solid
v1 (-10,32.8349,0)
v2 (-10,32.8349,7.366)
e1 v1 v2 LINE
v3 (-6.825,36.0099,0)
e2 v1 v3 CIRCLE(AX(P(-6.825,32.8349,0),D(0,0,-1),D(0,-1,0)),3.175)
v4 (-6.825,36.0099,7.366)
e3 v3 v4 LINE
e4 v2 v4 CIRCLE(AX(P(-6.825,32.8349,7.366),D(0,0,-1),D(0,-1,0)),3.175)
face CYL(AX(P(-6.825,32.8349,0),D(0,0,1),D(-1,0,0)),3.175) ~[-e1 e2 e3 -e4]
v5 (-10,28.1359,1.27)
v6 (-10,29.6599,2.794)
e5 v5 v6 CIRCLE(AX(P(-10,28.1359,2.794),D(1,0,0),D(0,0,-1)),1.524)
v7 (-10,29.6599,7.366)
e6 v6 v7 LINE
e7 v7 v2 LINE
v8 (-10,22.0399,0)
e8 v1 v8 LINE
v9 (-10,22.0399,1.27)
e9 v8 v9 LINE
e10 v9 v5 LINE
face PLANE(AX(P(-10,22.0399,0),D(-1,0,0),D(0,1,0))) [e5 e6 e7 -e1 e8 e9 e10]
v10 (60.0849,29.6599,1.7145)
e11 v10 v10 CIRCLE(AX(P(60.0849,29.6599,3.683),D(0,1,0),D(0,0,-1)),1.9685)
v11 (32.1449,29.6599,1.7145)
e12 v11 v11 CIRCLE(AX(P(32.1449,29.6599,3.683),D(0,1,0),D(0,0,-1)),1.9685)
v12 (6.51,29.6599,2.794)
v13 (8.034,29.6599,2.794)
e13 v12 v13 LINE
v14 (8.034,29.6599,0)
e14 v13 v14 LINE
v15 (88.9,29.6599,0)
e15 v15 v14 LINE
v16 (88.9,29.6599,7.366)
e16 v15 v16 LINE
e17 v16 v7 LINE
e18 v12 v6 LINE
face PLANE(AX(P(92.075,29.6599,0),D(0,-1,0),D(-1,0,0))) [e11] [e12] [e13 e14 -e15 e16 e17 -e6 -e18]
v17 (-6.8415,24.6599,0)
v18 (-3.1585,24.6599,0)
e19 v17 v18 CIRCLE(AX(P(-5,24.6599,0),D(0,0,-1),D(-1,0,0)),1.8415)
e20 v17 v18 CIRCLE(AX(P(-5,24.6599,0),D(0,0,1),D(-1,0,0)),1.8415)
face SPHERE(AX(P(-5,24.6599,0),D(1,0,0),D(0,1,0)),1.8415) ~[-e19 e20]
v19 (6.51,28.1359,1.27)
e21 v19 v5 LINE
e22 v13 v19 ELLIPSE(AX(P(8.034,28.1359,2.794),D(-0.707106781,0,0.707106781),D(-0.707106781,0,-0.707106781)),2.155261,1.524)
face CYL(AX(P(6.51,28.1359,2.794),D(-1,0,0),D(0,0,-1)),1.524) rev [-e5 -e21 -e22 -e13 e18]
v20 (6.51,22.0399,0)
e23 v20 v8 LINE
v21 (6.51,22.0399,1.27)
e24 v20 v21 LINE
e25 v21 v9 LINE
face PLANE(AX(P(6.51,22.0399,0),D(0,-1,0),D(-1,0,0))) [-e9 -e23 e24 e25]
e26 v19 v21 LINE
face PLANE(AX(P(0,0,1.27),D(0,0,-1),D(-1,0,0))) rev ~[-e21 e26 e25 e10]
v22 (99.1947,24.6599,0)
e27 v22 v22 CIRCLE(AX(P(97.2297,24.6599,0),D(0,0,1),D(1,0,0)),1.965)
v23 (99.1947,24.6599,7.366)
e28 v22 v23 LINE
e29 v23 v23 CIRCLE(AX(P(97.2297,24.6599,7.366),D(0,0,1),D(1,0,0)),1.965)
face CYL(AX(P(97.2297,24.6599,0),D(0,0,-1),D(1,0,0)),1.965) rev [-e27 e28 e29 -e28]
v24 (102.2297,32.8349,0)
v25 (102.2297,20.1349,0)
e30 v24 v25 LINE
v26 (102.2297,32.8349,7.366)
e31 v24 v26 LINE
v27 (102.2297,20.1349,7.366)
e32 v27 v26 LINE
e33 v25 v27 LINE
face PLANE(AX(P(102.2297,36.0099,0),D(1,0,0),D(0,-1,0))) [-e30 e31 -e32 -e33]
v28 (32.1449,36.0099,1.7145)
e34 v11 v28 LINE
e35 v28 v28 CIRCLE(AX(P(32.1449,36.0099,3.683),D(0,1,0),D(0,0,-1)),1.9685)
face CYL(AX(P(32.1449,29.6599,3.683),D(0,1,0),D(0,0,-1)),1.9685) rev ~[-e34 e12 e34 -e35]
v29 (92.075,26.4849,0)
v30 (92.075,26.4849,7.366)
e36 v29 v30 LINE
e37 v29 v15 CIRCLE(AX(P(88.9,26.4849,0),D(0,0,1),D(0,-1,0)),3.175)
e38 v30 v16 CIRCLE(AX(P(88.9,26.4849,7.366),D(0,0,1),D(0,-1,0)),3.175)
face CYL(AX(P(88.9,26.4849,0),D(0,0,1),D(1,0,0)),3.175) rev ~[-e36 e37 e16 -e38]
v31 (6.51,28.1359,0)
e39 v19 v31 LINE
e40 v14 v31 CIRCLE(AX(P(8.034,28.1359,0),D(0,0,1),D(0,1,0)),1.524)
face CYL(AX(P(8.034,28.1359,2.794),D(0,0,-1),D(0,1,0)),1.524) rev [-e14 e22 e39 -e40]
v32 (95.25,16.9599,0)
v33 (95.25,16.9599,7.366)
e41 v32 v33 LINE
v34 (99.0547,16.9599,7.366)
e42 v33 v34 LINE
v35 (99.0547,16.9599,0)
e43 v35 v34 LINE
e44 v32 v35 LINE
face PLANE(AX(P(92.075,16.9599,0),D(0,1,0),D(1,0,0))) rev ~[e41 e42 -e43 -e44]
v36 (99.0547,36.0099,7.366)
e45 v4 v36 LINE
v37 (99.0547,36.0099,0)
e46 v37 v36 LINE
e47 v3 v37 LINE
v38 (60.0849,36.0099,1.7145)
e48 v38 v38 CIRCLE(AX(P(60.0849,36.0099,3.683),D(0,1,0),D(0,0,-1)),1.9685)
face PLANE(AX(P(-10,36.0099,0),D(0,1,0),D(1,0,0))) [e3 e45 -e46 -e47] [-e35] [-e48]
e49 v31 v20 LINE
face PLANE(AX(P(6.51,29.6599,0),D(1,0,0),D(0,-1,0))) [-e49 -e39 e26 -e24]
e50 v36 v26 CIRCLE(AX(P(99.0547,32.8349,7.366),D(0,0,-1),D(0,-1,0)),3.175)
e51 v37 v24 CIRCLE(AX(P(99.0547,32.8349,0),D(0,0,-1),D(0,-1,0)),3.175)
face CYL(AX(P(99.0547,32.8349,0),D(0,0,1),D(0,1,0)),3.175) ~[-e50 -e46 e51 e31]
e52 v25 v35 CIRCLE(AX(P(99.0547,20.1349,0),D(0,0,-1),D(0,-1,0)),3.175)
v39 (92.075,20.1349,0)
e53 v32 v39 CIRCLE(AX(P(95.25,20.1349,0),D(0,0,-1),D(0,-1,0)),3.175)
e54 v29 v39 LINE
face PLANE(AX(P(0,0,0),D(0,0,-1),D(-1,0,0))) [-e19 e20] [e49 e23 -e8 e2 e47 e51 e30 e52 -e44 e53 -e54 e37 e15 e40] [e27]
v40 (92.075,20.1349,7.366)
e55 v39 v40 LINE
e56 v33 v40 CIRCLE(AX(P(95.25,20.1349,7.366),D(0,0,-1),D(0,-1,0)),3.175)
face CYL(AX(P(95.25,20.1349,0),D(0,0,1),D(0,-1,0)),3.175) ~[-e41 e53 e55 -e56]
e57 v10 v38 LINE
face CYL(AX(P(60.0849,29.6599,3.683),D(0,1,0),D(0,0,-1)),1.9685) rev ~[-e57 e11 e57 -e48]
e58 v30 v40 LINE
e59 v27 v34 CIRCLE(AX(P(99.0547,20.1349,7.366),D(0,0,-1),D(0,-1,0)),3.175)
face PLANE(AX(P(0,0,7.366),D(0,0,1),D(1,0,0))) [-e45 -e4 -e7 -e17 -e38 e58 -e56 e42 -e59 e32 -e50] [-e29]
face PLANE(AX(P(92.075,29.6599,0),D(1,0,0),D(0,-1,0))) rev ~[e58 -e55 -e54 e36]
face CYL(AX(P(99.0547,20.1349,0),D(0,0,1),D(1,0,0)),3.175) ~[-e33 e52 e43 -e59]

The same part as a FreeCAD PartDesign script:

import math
import FreeCAD as App
import Part
import Sketcher
Q = App.Units.Quantity


def edges_at(feature, points):
    """Names of the edges that pass closest to the given points."""
    edges = feature.Shape.Edges
    near = lambda p: min(range(len(edges)), key=lambda i: edges[i].distToShape(Part.Vertex(*p))[0])
    return sorted({f"Edge{near(p) + 1}" for p in points})


def add_polygon(sketch, points):
    """Adds a closed chain of lines whose ends are joined by coincident constraints."""
    first, n = sketch.GeometryCount, len(points)
    for a, b in zip(points, points[1:] + points[:1]):
        sketch.addGeometry(Part.LineSegment(App.Vector(*a, 0), App.Vector(*b, 0)), False)
    for i in range(n):
        sketch.addConstraint(Sketcher.Constraint("Coincident", first + i, 2, first + (i + 1) % n, 1))

doc = App.newDocument("Part")
body = doc.addObject("PartDesign::Body", "Body")

# Sketch on XY plane
sketch1 = body.newObject("Sketcher::SketchObject", "Sketch")
sketch1.AttachmentSupport = (doc.getObject("XY_Plane"), [""])
sketch1.MapMode = "FlatFace"
add_polygon(sketch1, [(102.2, 36), (-10, 36), (-10, 29.7), (92.1, 29.7), (92.1, 17), (102.2, 17)])  # lines 0-5
sketch1.addGeometry(Part.Circle(App.Vector(97.2, 24.7, 0), App.Vector(0, 0, 1), 2), False)  # 6
sketch1.addConstraint(Sketcher.Constraint("Horizontal", 0))
sketch1.addConstraint(Sketcher.Constraint("Vertical", 1))
sketch1.addConstraint(Sketcher.Constraint("Horizontal", 2))
sketch1.addConstraint(Sketcher.Constraint("Vertical", 3))
sketch1.addConstraint(Sketcher.Constraint("Horizontal", 4))
sketch1.addConstraint(Sketcher.Constraint("Vertical", 5))
sketch1.addConstraint(Sketcher.Constraint("DistanceY", 3, 2, 3, 1, Q("0.5 in")))
sketch1.addConstraint(Sketcher.Constraint("DistanceY", 1, 2, 1, 1, Q("0.25 in")))
sketch1.addConstraint(Sketcher.Constraint("Diameter", 6, 3.93))
sketch1.addConstraint(Sketcher.Constraint("DistanceX", 0, 2, 0, 1, Q("4.4185 in")))
sketch1.addConstraint(Sketcher.Constraint("DistanceX", 2, 1, 2, 2, Q("4.0187 in")))
sketch1.addConstraint(Sketcher.Constraint("DistanceX", -1, 1, 2, 2, Q("3.625 in")))
sketch1.addConstraint(Sketcher.Constraint("DistanceX", -1, 1, 6, 3, 97.2297))
sketch1.addConstraint(Sketcher.Constraint("DistanceY", -1, 1, 6, 3, 24.66))
sketch1.addConstraint(Sketcher.Constraint("DistanceY", -1, 1, 0, 2, 36.01))
pad1 = body.newObject("PartDesign::Pad", "Pad")
pad1.Profile = sketch1
pad1.Length = Q("0.29 in")
doc.recompute()

fillet = body.newObject("PartDesign::Fillet", "Fillet")
fillet.Base = (pad1, edges_at(pad1, [
    (92.075, 29.66, 3.683),
    (102.23, 36.01, 3.683),
    (92.075, 16.96, 3.683),
    (102.23, 16.96, 3.683),
]))
fillet.Radius = Q("0.125 in")

# Sketch on XY plane
sketch2 = body.newObject("Sketcher::SketchObject", "Sketch001")
sketch2.AttachmentSupport = (doc.getObject("XY_Plane"), [""])
sketch2.MapMode = "FlatFace"
add_polygon(sketch2, [(-10, 30), (7, 30), (7, 22), (-10, 22)])  # lines 0-3
sketch2.addConstraint(Sketcher.Constraint("Horizontal", 0))
sketch2.addConstraint(Sketcher.Constraint("Vertical", 1))
sketch2.addConstraint(Sketcher.Constraint("Horizontal", 2))
sketch2.addConstraint(Sketcher.Constraint("Vertical", 3))
sketch2.addConstraint(Sketcher.Constraint("DistanceY", 1, 2, 1, 1, Q("0.3 in")))
sketch2.addConstraint(Sketcher.Constraint("DistanceX", 0, 1, 0, 2, Q("0.65 in")))
sketch2.addConstraint(Sketcher.Constraint("DistanceX", -1, 1, 0, 2, Q("0.2563 in")))
sketch2.addConstraint(Sketcher.Constraint("DistanceY", -1, 1, 0, 2, 29.66))
pad2 = body.newObject("PartDesign::Pad", "Pad001")
pad2.Profile = sketch2
pad2.Length = Q("0.05 in")
doc.recompute()

fillet2 = body.newObject("PartDesign::Fillet", "Fillet001")
fillet2.Base = (pad2, edges_at(pad2, [(-1.745, 29.66, 1.27)]))
fillet2.Radius = Q("0.06 in")

# Sketch on XY plane
sketch3 = body.newObject("Sketcher::SketchObject", "Sketch002")
sketch3.AttachmentSupport = (doc.getObject("XY_Plane"), [""])
sketch3.MapMode = "FlatFace"
sketch3.addGeometry(Part.LineSegment(App.Vector(-3.2, 24.7, 0), App.Vector(-6.8, 24.7, 0)), False)
sketch3.addGeometry(Part.ArcOfCircle(Part.Circle(App.Vector(-5, 24.7, 0), App.Vector(0, 0, 1), 1.8), math.radians(0), math.radians(180)), False)
sketch3.addGeometry(Part.LineSegment(App.Vector(-3.2, 24.7, 0), App.Vector(-6.8, 24.7, 0)), True)  # axis
sketch3.addConstraint(Sketcher.Constraint("Coincident", 0, 1, 1, 1))
sketch3.addConstraint(Sketcher.Constraint("Coincident", 1, 2, 0, 2))
sketch3.addConstraint(Sketcher.Constraint("Horizontal", 0))
sketch3.addConstraint(Sketcher.Constraint("Horizontal", 2))
sketch3.addConstraint(Sketcher.Constraint("Coincident", 2, 1, 0, 1))
sketch3.addConstraint(Sketcher.Constraint("Horizontal", 1, 3, 0, 1))
sketch3.addConstraint(Sketcher.Constraint("Equal", 0, 2))
sketch3.addConstraint(Sketcher.Constraint("Radius", 1, Q("0.0725 in")))
sketch3.addConstraint(Sketcher.Constraint("DistanceX", 1, 3, -1, 1, 5.0))
sketch3.addConstraint(Sketcher.Constraint("DistanceY", -1, 1, 1, 3, 24.66))
revolution = body.newObject("PartDesign::Revolution", "Revolution")
revolution.Profile = sketch3
revolution.ReferenceAxis = (sketch3, ["Axis0"])
revolution.Angle = 180

# Sketch on XZ plane
sketch4 = body.newObject("Sketcher::SketchObject", "Sketch003")
sketch4.AttachmentSupport = (doc.getObject("XZ_Plane"), [""])
sketch4.MapMode = "FlatFace"
sketch4.AttachmentOffset = App.Placement(App.Vector(0, 0, -29.6599), App.Rotation())
sketch4.addGeometry(Part.Circle(App.Vector(32.1, 3.7, 0), App.Vector(0, 0, 1), 2), False)
sketch4.addGeometry(Part.Circle(App.Vector(60.1, 3.7, 0), App.Vector(0, 0, 1), 2), False)
sketch4.addConstraint(Sketcher.Constraint("Equal", 0, 1))
sketch4.addConstraint(Sketcher.Constraint("Horizontal", 0, 3, 1, 3))
sketch4.addConstraint(Sketcher.Constraint("Diameter", 0, Q("0.155 in")))
sketch4.addConstraint(Sketcher.Constraint("DistanceX", 0, 3, 1, 3, Q("1.1 in")))
sketch4.addConstraint(Sketcher.Constraint("DistanceY", -1, 1, 0, 3, Q("0.145 in")))
sketch4.addConstraint(Sketcher.Constraint("DistanceX", -1, 1, 0, 3, 32.145))
doc.recompute()
hole = body.newObject("PartDesign::Hole", "Hole")
hole.Profile = sketch4
hole.ThreadType = "None"
hole.Diameter = Q("0.155 in")
hole.DepthType = "ThroughAll"
doc.recompute()

fillet3 = body.newObject("PartDesign::Fillet", "Fillet002")
fillet3.Base = (hole, edges_at(hole, [(-10, 36.01, 3.683)]))
fillet3.Radius = Q("0.125 in")
doc.recompute()

fillet4 = body.newObject("PartDesign::Fillet", "Fillet003")
fillet4.Base = (fillet3, edges_at(fillet3, [(6.51, 29.66, 1.397)]))
fillet4.Radius = Q("0.06 in")

doc.recompute()
